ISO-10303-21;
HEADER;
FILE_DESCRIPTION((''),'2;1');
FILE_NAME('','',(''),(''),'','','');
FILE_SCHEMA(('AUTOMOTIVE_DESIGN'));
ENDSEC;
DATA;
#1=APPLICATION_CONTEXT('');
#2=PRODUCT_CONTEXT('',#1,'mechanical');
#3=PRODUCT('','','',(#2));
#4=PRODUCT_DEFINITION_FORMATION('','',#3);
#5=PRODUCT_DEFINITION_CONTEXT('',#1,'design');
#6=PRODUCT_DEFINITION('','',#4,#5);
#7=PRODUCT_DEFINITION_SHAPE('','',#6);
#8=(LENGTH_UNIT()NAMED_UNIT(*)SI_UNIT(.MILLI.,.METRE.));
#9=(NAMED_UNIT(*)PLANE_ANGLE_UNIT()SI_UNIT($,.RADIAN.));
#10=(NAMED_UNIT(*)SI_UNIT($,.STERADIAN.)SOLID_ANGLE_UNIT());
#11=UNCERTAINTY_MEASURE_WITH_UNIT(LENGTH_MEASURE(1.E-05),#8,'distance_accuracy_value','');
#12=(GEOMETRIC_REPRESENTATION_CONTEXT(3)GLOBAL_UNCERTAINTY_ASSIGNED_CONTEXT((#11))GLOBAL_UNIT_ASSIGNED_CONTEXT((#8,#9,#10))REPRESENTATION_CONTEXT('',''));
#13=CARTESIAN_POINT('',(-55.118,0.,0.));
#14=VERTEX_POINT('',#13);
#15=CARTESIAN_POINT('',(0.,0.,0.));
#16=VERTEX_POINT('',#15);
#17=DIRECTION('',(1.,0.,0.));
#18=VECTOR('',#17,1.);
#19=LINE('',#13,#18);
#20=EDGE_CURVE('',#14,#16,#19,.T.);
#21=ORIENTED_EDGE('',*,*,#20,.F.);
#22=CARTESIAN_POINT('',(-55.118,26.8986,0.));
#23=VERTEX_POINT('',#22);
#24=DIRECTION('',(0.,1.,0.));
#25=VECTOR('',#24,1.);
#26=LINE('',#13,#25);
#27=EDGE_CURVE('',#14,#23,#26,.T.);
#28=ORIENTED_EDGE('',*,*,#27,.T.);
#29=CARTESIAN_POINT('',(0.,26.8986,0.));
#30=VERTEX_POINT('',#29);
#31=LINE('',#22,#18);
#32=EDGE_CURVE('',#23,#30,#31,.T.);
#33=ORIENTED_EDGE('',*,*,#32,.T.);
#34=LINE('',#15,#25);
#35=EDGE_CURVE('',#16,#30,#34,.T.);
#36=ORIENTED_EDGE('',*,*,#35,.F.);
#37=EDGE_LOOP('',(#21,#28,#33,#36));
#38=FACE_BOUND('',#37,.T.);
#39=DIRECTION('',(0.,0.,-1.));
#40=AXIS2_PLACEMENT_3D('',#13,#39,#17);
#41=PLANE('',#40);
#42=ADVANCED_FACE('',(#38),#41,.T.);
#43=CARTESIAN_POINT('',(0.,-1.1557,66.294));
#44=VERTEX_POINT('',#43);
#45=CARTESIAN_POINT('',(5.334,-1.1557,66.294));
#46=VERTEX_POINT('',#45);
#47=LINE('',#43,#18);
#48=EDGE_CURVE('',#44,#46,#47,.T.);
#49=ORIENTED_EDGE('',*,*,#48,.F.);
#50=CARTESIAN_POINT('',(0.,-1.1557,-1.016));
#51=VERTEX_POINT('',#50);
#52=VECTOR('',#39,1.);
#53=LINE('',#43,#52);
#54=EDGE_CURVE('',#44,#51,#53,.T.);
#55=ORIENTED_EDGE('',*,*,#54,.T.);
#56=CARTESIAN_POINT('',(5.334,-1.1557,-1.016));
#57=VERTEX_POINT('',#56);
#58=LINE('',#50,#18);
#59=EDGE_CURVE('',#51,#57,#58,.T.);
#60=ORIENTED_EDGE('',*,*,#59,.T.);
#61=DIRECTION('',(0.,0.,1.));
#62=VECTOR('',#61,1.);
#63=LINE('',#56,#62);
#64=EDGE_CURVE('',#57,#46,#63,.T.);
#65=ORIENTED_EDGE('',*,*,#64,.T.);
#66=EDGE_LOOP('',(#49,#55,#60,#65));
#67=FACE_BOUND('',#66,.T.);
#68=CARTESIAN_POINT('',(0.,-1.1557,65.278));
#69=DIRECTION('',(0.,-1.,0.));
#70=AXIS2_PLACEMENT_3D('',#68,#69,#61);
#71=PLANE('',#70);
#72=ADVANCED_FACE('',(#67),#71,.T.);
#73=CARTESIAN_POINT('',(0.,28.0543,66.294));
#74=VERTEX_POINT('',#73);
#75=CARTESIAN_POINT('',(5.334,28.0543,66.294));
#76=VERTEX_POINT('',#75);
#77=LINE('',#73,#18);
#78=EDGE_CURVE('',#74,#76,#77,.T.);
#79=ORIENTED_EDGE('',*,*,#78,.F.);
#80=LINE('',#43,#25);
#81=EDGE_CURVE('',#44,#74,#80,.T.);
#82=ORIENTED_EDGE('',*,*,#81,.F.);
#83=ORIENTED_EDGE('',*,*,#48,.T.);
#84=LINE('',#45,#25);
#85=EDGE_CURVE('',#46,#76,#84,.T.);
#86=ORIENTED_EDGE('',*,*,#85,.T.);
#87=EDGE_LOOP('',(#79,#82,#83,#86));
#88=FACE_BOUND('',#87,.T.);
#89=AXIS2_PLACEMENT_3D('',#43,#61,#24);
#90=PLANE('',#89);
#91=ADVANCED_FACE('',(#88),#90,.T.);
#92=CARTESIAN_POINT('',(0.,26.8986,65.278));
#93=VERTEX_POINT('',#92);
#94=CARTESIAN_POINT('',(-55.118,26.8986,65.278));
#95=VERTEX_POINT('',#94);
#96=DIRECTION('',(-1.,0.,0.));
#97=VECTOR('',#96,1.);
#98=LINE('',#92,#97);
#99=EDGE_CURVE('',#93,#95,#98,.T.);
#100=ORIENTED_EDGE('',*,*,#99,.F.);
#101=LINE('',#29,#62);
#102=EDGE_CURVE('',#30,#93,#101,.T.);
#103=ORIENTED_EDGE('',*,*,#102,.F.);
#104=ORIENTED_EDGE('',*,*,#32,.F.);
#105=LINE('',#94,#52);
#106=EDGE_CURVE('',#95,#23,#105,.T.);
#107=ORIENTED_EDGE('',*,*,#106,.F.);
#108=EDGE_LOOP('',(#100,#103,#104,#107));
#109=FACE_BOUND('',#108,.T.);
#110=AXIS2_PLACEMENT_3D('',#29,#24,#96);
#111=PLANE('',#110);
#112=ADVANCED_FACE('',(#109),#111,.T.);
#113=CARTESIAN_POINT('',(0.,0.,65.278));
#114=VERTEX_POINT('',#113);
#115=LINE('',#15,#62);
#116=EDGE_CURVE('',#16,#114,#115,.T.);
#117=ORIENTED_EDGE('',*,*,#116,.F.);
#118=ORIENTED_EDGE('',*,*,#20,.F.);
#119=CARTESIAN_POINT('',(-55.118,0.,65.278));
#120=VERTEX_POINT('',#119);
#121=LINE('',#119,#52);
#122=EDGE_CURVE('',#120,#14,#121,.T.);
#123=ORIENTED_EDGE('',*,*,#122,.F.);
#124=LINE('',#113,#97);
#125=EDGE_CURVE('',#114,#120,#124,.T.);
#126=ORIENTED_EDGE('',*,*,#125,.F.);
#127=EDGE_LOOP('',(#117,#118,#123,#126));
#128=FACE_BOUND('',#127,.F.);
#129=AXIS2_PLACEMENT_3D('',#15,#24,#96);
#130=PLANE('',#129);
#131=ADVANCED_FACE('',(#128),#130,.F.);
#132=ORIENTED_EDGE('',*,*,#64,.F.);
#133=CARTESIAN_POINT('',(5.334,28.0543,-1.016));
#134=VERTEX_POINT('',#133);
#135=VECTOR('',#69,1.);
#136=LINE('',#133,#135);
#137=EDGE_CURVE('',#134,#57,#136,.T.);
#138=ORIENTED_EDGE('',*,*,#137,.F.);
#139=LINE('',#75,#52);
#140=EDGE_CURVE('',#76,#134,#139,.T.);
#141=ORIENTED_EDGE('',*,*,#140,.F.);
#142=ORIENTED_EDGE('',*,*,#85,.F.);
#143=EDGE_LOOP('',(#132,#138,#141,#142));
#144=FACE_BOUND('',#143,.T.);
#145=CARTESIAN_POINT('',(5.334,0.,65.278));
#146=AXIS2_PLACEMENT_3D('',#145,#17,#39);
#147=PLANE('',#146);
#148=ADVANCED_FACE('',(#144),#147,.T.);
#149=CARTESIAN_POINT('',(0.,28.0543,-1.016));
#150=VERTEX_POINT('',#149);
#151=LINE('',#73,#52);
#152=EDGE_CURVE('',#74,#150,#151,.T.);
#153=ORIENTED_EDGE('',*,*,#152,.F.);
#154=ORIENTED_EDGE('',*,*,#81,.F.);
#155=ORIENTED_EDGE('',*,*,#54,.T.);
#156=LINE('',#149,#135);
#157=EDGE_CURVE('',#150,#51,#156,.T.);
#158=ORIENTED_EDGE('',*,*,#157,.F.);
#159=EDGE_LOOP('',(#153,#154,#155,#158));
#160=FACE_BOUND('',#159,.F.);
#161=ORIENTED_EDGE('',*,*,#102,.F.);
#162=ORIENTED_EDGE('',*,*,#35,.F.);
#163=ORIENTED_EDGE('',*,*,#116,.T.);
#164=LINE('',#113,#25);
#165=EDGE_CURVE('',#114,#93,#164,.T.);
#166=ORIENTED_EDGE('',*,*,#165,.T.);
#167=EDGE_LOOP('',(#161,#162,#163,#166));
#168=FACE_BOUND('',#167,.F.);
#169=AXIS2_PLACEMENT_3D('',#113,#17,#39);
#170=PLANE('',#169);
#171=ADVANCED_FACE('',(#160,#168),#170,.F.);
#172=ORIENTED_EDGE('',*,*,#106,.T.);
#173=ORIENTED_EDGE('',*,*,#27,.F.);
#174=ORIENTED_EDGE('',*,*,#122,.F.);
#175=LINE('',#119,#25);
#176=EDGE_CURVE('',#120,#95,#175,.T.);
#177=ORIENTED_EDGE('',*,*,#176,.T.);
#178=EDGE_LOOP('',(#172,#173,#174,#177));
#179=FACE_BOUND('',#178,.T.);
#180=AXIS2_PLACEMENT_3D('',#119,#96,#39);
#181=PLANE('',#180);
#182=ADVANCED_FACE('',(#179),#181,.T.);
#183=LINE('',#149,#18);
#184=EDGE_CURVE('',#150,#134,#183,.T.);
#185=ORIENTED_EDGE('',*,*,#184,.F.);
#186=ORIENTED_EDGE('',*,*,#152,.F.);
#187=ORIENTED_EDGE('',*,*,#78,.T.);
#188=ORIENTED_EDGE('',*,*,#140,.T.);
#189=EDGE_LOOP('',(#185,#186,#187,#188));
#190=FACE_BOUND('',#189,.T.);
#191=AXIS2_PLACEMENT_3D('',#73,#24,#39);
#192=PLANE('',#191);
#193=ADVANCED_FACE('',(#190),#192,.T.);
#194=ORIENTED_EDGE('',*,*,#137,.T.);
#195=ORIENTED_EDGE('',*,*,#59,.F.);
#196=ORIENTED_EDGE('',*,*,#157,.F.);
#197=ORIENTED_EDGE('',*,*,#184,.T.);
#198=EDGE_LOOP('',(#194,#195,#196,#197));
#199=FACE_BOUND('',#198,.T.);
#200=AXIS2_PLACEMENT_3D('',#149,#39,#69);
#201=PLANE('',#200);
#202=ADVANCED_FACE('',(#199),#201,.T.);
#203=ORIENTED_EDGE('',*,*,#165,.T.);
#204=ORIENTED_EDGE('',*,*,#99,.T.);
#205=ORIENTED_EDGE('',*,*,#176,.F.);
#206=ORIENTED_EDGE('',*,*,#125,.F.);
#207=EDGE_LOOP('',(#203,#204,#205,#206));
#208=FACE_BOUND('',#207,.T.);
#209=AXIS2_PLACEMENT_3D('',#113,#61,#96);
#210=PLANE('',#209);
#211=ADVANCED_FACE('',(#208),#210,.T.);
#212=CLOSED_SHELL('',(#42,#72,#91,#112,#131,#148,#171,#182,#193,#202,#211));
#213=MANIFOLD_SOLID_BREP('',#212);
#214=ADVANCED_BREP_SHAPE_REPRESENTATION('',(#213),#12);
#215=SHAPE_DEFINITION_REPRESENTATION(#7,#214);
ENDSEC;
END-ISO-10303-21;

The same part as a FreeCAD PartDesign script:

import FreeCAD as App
import Part
import Sketcher
from FreeCAD import Vector
Q = App.Units.Quantity


def add_polygon(sketch, points):
    """Adds a closed chain of lines whose ends are joined by coincident constraints."""
    first, n = sketch.GeometryCount, len(points)
    for a, b in zip(points, points[1:] + points[:1]):
        sketch.addGeometry(Part.LineSegment(App.Vector(*a, 0), App.Vector(*b, 0)), False)
    for i in range(n):
        sketch.addConstraint(Sketcher.Constraint("Coincident", first + i, 2, first + (i + 1) % n, 1))

doc = App.newDocument("Part")
body = doc.addObject("PartDesign::Body", "Body")

# Sketch on XZ plane
sketch1 = body.newObject("Sketcher::SketchObject", "Sketch")
sketch1.AttachmentSupport = (doc.getObject("XZ_Plane"), [""])
sketch1.MapMode = "FlatFace"
add_polygon(sketch1, [(0, 65), (0, 0), (-55, 0), (-55, 65)])  # lines 0-3
sketch1.addConstraint(Sketcher.Constraint("Vertical", 0))
sketch1.addConstraint(Sketcher.Constraint("Horizontal", 1))
sketch1.addConstraint(Sketcher.Constraint("Vertical", 2))
sketch1.addConstraint(Sketcher.Constraint("Horizontal", 3))
sketch1.addConstraint(Sketcher.Constraint("Coincident", 0, 2, -1, 1))
sketch1.addConstraint(Sketcher.Constraint("DistanceX", 1, 2, 1, 1, Q("2.17 in")))
sketch1.addConstraint(Sketcher.Constraint("DistanceY", 0, 2, 0, 1, Q("2.57 in")))
pad1 = body.newObject("PartDesign::Pad", "Pad")
pad1.Profile = sketch1
pad1.Length = Q("1.059 in")
pad1.Reversed = True

# Sketch on YZ plane
sketch2 = body.newObject("Sketcher::SketchObject", "Sketch001")
sketch2.AttachmentSupport = (doc.getObject("YZ_Plane"), [""])
sketch2.MapMode = "FlatFace"
add_polygon(sketch2, [(-1, 66), (-1, -1), (28, -1), (28, 66)])  # lines 0-3
sketch2.addConstraint(Sketcher.Constraint("Vertical", 0))
sketch2.addConstraint(Sketcher.Constraint("Horizontal", 1))
sketch2.addConstraint(Sketcher.Constraint("Vertical", 2))
sketch2.addConstraint(Sketcher.Constraint("Horizontal", 3))
sketch2.addConstraint(Sketcher.Constraint("DistanceX", 1, 1, 1, 2, Q("1.15 in")))
sketch2.addConstraint(Sketcher.Constraint("DistanceY", 0, 2, 0, 1, Q("2.65 in")))
sketch2.addConstraint(Sketcher.Constraint("DistanceY", 0, 2, -1, 1, Q("0.04 in")))
sketch2.addConstraint(Sketcher.Constraint("DistanceX", 0, 2, -1, 1, Q("0.0455 in")))
pad2 = body.newObject("PartDesign::Pad", "Pad001")
pad2.Profile = sketch2
pad2.Length = Q("0.21 in")

doc.recompute()
